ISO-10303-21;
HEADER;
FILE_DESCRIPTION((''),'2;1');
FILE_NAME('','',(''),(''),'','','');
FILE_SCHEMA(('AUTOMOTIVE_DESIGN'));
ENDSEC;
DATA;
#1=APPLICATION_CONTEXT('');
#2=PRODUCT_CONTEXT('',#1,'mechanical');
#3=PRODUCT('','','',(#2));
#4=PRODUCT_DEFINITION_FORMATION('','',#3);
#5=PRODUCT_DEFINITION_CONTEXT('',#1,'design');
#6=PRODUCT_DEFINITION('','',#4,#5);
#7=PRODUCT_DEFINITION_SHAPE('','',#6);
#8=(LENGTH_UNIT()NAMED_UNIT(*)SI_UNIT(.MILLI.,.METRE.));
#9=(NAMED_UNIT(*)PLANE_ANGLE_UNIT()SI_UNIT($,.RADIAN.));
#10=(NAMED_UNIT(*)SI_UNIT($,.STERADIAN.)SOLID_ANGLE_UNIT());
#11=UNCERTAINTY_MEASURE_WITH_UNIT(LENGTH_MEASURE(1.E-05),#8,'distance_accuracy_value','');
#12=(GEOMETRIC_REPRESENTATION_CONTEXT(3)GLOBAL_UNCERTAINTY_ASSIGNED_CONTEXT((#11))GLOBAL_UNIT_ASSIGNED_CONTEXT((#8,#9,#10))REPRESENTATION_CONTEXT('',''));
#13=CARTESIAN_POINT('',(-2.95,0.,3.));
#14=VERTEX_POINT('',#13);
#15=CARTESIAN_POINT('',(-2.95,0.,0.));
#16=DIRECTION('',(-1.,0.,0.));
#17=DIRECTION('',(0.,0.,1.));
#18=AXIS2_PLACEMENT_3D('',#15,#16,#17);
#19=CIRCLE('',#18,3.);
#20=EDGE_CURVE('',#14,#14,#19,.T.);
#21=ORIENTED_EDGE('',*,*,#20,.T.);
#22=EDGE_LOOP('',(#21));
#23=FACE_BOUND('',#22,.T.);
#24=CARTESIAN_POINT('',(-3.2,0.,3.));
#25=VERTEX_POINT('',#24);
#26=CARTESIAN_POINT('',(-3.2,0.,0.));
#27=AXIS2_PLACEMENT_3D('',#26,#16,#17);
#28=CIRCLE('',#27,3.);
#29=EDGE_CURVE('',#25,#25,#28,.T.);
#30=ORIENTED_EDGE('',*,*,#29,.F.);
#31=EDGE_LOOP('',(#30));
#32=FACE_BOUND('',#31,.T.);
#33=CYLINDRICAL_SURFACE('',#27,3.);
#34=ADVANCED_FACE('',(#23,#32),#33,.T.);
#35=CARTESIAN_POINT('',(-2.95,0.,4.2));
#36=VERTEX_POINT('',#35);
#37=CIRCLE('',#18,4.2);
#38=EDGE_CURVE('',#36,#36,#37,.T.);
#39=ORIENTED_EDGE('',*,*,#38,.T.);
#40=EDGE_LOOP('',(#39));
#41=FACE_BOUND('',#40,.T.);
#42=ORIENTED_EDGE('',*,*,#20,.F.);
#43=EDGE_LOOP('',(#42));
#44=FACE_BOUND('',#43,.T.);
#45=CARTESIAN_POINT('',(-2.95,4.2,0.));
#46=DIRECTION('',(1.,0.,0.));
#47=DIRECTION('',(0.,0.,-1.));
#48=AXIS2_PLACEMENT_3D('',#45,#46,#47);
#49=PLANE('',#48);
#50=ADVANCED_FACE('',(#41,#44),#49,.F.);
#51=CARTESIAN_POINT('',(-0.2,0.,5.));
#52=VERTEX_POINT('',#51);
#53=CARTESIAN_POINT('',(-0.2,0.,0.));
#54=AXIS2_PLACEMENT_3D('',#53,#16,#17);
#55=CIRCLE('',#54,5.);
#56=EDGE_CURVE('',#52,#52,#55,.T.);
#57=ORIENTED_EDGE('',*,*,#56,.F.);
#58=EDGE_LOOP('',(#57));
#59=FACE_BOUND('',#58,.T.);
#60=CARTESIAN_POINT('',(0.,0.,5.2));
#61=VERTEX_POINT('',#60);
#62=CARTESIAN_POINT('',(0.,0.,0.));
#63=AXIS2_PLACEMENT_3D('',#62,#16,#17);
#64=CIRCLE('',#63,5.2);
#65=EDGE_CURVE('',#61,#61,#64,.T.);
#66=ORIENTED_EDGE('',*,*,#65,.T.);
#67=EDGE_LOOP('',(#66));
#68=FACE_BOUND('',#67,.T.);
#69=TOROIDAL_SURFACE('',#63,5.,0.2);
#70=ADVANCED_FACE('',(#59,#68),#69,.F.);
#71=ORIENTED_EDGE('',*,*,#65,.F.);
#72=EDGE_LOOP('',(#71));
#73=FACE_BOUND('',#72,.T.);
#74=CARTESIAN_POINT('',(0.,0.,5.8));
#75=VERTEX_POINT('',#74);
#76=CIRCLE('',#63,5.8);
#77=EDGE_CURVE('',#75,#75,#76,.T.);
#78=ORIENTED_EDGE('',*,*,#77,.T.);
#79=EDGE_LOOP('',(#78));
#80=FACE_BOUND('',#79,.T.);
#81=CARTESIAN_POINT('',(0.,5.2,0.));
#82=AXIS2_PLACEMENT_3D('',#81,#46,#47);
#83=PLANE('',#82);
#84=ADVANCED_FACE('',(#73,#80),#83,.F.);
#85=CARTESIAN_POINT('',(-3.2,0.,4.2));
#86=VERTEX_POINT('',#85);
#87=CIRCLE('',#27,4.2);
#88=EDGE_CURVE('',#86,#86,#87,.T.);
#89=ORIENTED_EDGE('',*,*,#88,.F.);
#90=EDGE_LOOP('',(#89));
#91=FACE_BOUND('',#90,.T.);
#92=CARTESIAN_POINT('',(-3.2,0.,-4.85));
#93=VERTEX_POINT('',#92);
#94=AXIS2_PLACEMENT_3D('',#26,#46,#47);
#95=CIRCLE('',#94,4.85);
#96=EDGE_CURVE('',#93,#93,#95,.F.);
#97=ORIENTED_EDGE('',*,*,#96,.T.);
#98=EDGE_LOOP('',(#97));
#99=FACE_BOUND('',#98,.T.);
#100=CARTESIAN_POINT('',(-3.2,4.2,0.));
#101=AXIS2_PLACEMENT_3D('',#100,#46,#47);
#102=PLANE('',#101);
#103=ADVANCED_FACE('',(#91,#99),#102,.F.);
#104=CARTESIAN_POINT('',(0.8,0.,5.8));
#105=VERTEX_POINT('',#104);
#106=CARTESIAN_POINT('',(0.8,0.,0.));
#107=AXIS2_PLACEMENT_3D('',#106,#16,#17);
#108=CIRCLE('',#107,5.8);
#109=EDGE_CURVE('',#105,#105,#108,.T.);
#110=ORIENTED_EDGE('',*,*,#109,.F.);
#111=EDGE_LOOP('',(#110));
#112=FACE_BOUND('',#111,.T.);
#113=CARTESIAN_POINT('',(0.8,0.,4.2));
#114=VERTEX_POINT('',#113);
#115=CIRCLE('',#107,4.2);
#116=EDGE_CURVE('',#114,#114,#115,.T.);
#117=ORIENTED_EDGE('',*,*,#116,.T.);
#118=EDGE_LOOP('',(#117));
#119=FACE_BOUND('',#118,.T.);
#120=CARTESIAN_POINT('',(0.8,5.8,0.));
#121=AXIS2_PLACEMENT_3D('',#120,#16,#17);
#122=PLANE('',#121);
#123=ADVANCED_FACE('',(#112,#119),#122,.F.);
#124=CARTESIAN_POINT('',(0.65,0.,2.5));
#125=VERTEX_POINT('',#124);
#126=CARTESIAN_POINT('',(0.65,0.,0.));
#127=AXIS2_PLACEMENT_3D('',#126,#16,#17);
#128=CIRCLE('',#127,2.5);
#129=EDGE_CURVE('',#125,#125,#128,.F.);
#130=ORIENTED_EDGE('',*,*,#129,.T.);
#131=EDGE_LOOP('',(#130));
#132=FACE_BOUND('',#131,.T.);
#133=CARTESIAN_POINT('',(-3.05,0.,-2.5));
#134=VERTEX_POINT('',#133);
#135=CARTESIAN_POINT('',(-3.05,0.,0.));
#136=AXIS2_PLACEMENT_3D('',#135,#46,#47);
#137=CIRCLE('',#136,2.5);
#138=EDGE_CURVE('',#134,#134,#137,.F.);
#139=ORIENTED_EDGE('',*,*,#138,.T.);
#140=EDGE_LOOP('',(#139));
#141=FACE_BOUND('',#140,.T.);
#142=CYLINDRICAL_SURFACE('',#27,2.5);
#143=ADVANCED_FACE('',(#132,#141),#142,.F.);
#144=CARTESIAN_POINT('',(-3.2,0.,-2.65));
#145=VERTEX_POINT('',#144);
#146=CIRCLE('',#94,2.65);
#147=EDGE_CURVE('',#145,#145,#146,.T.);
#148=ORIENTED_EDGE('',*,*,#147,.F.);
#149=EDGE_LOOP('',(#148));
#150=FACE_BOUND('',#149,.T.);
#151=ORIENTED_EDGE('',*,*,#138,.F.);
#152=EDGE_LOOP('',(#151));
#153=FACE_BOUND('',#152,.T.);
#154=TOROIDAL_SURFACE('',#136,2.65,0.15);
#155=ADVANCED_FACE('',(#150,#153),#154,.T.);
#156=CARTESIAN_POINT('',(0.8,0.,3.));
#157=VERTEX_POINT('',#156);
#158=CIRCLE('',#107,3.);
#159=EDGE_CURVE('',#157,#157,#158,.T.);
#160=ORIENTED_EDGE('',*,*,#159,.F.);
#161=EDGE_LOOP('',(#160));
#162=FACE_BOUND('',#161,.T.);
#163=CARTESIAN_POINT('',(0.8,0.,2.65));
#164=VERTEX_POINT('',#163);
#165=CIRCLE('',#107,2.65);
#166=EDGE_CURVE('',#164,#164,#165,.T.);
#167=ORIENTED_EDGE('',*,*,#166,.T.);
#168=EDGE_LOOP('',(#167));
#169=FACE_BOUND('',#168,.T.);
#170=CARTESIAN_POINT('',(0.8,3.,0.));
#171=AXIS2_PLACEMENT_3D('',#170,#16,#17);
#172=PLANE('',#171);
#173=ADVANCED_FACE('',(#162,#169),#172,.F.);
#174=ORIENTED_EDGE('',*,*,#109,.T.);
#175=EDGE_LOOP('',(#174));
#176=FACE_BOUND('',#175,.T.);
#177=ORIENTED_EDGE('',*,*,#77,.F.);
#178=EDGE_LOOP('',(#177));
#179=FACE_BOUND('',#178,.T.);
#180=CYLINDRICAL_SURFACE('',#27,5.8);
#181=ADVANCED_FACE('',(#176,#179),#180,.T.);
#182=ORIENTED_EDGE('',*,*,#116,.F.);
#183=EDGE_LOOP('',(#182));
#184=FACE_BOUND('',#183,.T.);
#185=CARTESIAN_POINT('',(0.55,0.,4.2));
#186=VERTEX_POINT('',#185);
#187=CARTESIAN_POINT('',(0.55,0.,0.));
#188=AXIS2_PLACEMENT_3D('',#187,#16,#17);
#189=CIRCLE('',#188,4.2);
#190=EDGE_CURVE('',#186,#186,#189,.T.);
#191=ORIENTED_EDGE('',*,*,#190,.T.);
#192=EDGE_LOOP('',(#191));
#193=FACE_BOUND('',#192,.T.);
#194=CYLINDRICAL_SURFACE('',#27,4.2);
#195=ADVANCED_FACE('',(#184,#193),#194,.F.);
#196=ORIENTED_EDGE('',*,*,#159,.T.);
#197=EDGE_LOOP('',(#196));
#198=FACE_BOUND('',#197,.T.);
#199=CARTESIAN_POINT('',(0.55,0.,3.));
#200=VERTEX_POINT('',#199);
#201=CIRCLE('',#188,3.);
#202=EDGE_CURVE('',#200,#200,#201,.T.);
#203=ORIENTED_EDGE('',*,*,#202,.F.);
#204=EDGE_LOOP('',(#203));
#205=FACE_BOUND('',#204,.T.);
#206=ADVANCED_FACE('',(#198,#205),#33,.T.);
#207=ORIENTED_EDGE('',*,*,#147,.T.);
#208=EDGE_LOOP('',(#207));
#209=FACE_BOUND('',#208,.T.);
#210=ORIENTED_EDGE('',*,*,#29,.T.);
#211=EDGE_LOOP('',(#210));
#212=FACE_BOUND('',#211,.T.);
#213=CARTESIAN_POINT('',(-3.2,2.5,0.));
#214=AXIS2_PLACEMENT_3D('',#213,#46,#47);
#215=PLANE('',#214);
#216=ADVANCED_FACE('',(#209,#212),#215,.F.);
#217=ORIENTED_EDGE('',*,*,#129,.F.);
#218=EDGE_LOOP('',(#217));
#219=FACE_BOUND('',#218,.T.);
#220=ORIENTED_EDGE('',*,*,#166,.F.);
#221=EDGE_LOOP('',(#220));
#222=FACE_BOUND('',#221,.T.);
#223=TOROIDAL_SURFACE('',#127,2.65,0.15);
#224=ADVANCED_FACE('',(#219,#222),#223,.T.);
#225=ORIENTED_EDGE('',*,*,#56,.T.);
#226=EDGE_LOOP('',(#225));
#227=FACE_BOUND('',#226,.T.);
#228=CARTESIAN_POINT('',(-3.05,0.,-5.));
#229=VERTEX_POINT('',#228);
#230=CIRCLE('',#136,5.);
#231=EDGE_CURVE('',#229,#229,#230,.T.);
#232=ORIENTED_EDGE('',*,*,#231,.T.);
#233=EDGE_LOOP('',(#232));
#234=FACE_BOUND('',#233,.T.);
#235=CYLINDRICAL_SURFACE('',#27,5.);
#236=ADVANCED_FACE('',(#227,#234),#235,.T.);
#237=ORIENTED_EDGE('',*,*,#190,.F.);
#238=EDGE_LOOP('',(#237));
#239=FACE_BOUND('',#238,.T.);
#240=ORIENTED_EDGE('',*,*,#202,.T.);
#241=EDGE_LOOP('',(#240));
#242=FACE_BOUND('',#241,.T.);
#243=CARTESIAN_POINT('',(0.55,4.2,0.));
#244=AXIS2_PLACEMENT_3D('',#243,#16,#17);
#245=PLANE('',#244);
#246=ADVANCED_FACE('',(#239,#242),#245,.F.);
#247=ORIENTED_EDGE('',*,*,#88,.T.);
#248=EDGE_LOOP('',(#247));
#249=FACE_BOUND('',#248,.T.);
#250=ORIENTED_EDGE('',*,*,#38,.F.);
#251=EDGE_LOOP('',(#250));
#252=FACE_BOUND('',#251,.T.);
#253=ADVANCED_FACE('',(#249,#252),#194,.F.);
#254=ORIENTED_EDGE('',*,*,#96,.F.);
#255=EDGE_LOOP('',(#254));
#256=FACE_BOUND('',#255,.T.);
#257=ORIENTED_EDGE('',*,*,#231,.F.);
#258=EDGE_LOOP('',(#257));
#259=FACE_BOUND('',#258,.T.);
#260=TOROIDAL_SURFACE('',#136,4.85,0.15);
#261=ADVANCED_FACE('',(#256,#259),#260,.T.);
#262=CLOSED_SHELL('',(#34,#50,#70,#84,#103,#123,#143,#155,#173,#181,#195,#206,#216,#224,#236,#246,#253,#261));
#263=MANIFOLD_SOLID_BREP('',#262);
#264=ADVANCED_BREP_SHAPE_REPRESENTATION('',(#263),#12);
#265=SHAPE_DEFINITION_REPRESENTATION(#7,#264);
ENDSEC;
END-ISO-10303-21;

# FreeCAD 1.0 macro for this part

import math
import FreeCAD as App
import Part
import Sketcher
from FreeCAD import Vector
Q = App.Units.Quantity


def edges_at(feature, points):
    """Names of the edges that pass closest to the given points."""
    edges = feature.Shape.Edges
    near = lambda p: min(range(len(edges)), key=lambda i: edges[i].distToShape(Part.Vertex(*p))[0])
    return sorted({f"Edge{near(p) + 1}" for p in points})

doc = App.newDocument("Part")
body = doc.addObject("PartDesign::Body", "Body")

sketch1 = doc.addObject("Sketcher::SketchObject", "Sketch")
body.addObject(sketch1)
sketch1.AttachmentSupport = (doc.XY_Plane, [""])
sketch1.MapMode = "FlatFace"
sketch1.addGeometry([
    Part.LineSegment(Vector(0, 5.8, 0), Vector(0, 5.2, 0)),
    Part.ArcOfCircle(Part.Circle(Vector(0, 5, 0), Vector(0, 0, 1), 0.2), math.radians(180), math.radians(450)),
    Part.LineSegment(Vector(-0.2, 5, 0), Vector(-3.2, 5, 0)),
    Part.LineSegment(Vector(-3.2, 5, 0), Vector(-3.2, 4.2, 0)),
    Part.LineSegment(Vector(-3.2, 4.2, 0), Vector(-2.95, 4.2, 0)),
    Part.LineSegment(Vector(-2.95, 4.2, 0), Vector(-2.95, 3, 0)),
    Part.LineSegment(Vector(-2.95, 3, 0), Vector(-3.2, 3, 0)),
    Part.LineSegment(Vector(-3.2, 3, 0), Vector(-3.2, 2.5, 0)),
    Part.LineSegment(Vector(-3.2, 2.5, 0), Vector(0.8, 2.5, 0)),
    Part.LineSegment(Vector(0.8, 2.5, 0), Vector(0.8, 3, 0)),
    Part.LineSegment(Vector(0.8, 3, 0), Vector(0.55, 3, 0)),
    Part.LineSegment(Vector(0.55, 3, 0), Vector(0.55, 4.2, 0)),
    Part.LineSegment(Vector(0.55, 4.2, 0), Vector(0.8, 4.2, 0)),
    Part.LineSegment(Vector(0.8, 4.2, 0), Vector(0.8, 5.8, 0)),
    Part.LineSegment(Vector(0.8, 5.8, 0), Vector(0, 5.8, 0)),
], False)
sketch1.addConstraint([
    Sketcher.Constraint("Coincident", 0, 2, 1, 2),
    Sketcher.Constraint("Coincident", 1, 1, 2, 1),
    Sketcher.Constraint("Coincident", 2, 2, 3, 1),
    Sketcher.Constraint("Coincident", 3, 2, 4, 1),
    Sketcher.Constraint("Coincident", 4, 2, 5, 1),
    Sketcher.Constraint("Coincident", 5, 2, 6, 1),
    Sketcher.Constraint("Coincident", 6, 2, 7, 1),
    Sketcher.Constraint("Coincident", 7, 2, 8, 1),
    Sketcher.Constraint("Coincident", 8, 2, 9, 1),
    Sketcher.Constraint("Coincident", 9, 2, 10, 1),
    Sketcher.Constraint("Coincident", 10, 2, 11, 1),
    Sketcher.Constraint("Coincident", 11, 2, 12, 1),
    Sketcher.Constraint("Coincident", 12, 2, 13, 1),
    Sketcher.Constraint("Coincident", 13, 2, 14, 1),
    Sketcher.Constraint("Coincident", 14, 2, 0, 1),
    Sketcher.Constraint("Vertical", 0),
    Sketcher.Constraint("Horizontal", 2),
    Sketcher.Constraint("Vertical", 3),
    Sketcher.Constraint("Horizontal", 4),
    Sketcher.Constraint("Vertical", 5),
    Sketcher.Constraint("Horizontal", 6),
    Sketcher.Constraint("Vertical", 7),
    Sketcher.Constraint("Horizontal", 8),
    Sketcher.Constraint("Vertical", 9),
    Sketcher.Constraint("Horizontal", 10),
    Sketcher.Constraint("Vertical", 11),
    Sketcher.Constraint("Horizontal", 12),
    Sketcher.Constraint("Vertical", 13),
    Sketcher.Constraint("Horizontal", 14),
    Sketcher.Constraint("PointOnObject", 1, 3, -2),
    Sketcher.Constraint("PointOnObject", 0, 2, -2),
    Sketcher.Constraint("Horizontal", 6, 2, 9, 2),
    Sketcher.Constraint("Horizontal", 4, 2, 11, 2),
    Sketcher.Constraint("Vertical", 3, 2, 6, 2),
    Sketcher.Constraint("Vertical", 9, 2, 12, 2),
    Sketcher.Constraint("Equal", 6, 10),
    Sketcher.Constraint("Equal", 14, 3),
    Sketcher.Constraint("Radius", 1, Q("0.2 mm")),
    Sketcher.Constraint("DistanceX", 2, 2, 2, 1, Q("3 mm")),
    Sketcher.Constraint("DistanceX", 8, 1, 8, 2, Q("4 mm")),
    Sketcher.Constraint("DistanceY", 0, 2, 0, 1, Q("0.6 mm")),
    Sketcher.Constraint("DistanceY", 5, 2, 5, 1, Q("1.2 mm")),
    Sketcher.Constraint("DistanceY", 7, 2, 7, 1, Q("0.5 mm")),
    Sketcher.Constraint("DistanceY", 13, 1, 13, 2, Q("1.6 mm")),
    Sketcher.Constraint("DistanceY", -1, 1, 1, 3, Q("5 mm")),
    Sketcher.Constraint("DistanceX", 4, 1, 4, 2, Q("0.25 mm")),
])
revolution = doc.addObject("PartDesign::Revolution", "Revolution")
body.addObject(revolution)
revolution.Profile = sketch1
revolution.ReferenceAxis = (sketch1, ["H_Axis"])
revolution.Angle = 360
doc.recompute()

fillet = doc.addObject("PartDesign::Fillet", "Fillet")
body.addObject(fillet)
fillet.Base = (revolution, edges_at(revolution, [(0.8, -2.5, 0), (-3.2, -2.5, 0), (-3.2, -5, 0)]))
fillet.Radius = 0.15

doc.recompute()
